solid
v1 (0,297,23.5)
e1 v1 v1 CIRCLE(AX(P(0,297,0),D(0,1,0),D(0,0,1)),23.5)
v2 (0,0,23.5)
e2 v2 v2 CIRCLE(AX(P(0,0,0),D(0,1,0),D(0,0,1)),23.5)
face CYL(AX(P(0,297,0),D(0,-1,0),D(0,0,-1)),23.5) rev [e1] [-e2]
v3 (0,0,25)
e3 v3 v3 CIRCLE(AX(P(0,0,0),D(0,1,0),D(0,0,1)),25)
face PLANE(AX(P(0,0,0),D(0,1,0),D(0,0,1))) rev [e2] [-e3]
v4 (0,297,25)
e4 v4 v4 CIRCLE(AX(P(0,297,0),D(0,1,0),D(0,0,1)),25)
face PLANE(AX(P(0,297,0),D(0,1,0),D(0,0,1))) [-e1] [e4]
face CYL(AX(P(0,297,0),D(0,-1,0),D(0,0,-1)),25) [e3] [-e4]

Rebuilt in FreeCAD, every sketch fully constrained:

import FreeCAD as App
import Part
import Sketcher

V = App.Vector
Q = App.Units.Quantity

doc = App.newDocument("Part")
body = doc.addObject("PartDesign::Body", "Body")

sketch1 = doc.addObject("Sketcher::SketchObject", "Sketch")
body.addObject(sketch1)
sketch1.AttachmentSupport = (doc.XZ_Plane, [""])
sketch1.MapMode = "FlatFace"
sketch1.addGeometry([
    Part.Circle(V(0, 0, 0), V(0, 0, 1), 25),
    Part.Circle(V(0, 0, 0), V(0, 0, 1), 24),
], False)
sketch1.addConstraint([
    Sketcher.Constraint("Coincident", 0, 3, -1, 1),
    Sketcher.Constraint("Coincident", 1, 3, -1, 1),
    Sketcher.Constraint("Diameter", 0, Q("50 mm")),
    Sketcher.Constraint("Diameter", 1, Q("47 mm")),
])
pad1 = doc.addObject("PartDesign::Pad", "Pad")
body.addObject(pad1)
pad1.Profile = sketch1
pad1.Length = 297
pad1.Reversed = True

doc.recompute()
